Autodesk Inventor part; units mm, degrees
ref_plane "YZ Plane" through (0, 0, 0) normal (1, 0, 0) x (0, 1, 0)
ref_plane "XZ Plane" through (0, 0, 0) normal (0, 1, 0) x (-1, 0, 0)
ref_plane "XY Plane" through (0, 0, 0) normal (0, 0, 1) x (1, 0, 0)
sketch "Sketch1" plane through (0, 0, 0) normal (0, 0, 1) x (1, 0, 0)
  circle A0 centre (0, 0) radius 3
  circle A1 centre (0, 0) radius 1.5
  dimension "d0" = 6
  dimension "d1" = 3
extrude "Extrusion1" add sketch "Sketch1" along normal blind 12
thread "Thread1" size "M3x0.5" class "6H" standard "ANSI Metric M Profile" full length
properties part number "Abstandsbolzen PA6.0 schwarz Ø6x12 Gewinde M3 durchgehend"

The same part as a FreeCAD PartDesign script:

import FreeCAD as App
import Part
import Sketcher

V = App.Vector

doc = App.newDocument("Part")
params = doc.addObject("Spreadsheet::Sheet", "Params")
for row, (alias, value) in enumerate([
    ("sketch1_diameter", "6 mm"),
    ("sketch1_diameter2", "3 mm"),
    ("pad1_length", "12 mm"),
], start=1):
    params.set(f"A{row}", alias)
    params.set(f"B{row}", "=" + value)
    params.setAlias(f"B{row}", alias)

body = doc.addObject("PartDesign::Body", "Body")

# Sketch on XY plane
sketch1 = body.newObject("Sketcher::SketchObject", "Sketch")
sketch1.AttachmentSupport = (doc.getObject("XY_Plane"), [""])
sketch1.MapMode = "FlatFace"
sketch1.addGeometry(Part.Circle(V(0, 0, 0), V(0, 0, 1), 3), False)
sketch1.addGeometry(Part.Circle(V(0, 0, 0), V(0, 0, 1), 1.5), False)
sketch1.addConstraint(Sketcher.Constraint("Coincident", 0, 3, -1, 1))
sketch1.addConstraint(Sketcher.Constraint("Coincident", 1, 3, -1, 1))
sketch1.addConstraint(Sketcher.Constraint("Diameter", 0, 6.0))
sketch1.addConstraint(Sketcher.Constraint("Diameter", 1, 3.0))
sketch1.setExpression("Constraints[2]", "Params.sketch1_diameter")
sketch1.setExpression("Constraints[3]", "Params.sketch1_diameter2")
pad1 = body.newObject("PartDesign::Pad", "Pad")
pad1.Profile = sketch1
pad1.setExpression("Length", "Params.pad1_length")

doc.recompute()
